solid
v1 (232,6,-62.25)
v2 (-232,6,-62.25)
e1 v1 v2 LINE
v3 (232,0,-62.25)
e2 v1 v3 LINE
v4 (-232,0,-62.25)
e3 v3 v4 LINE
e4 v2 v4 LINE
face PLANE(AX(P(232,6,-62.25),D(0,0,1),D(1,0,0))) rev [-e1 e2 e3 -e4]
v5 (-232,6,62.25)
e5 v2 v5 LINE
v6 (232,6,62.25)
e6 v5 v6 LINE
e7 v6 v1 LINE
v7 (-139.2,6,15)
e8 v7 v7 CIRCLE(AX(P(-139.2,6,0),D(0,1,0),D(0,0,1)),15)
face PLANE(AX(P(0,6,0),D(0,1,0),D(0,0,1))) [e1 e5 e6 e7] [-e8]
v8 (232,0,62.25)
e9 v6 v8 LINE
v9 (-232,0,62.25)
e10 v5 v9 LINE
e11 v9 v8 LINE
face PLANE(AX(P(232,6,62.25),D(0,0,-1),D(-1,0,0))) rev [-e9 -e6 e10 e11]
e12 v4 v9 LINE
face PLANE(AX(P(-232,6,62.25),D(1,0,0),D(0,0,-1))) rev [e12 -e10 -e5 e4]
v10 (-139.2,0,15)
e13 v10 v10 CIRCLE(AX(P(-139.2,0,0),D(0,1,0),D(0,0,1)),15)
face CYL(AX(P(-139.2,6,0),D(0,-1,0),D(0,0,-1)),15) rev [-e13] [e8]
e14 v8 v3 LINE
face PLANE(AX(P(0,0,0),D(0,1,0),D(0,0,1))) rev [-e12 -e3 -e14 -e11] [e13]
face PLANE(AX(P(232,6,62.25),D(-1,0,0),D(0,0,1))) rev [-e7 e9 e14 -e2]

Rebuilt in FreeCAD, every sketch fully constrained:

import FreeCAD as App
import Part
import Sketcher
from FreeCAD import Vector

doc = App.newDocument("Part")
body = doc.addObject("PartDesign::Body", "Body")

sketch1 = body.newObject("Sketcher::SketchObject", "Sketch")
sketch1.AttachmentSupport = (doc.getObject("XZ_Plane"), [""])
sketch1.MapMode = "FlatFace"
sketch1.addGeometry(Part.LineSegment(Vector(-232, -62.25, 0), Vector(-232, 62.25, 0)), False)
sketch1.addGeometry(Part.LineSegment(Vector(-232, 62.25, 0), Vector(232, 62.25, 0)), False)
sketch1.addGeometry(Part.LineSegment(Vector(232, 62.25, 0), Vector(232, -62.25, 0)), False)
sketch1.addGeometry(Part.LineSegment(Vector(232, -62.25, 0), Vector(-232, -62.25, 0)), False)
sketch1.addGeometry(Part.Circle(Vector(-139.2, 0, 0), Vector(0, 0, 1), 15), False)
sketch1.addConstraint(Sketcher.Constraint("Coincident", 0, 2, 1, 1))
sketch1.addConstraint(Sketcher.Constraint("Coincident", 1, 2, 2, 1))
sketch1.addConstraint(Sketcher.Constraint("Coincident", 2, 2, 3, 1))
sketch1.addConstraint(Sketcher.Constraint("Coincident", 3, 2, 0, 1))
sketch1.addConstraint(Sketcher.Constraint("Vertical", 0))
sketch1.addConstraint(Sketcher.Constraint("Horizontal", 1))
sketch1.addConstraint(Sketcher.Constraint("Vertical", 2))
sketch1.addConstraint(Sketcher.Constraint("Horizontal", 3))
sketch1.addConstraint(Sketcher.Constraint("Symmetric", 0, 2, 2, 2, -1, 1))
sketch1.addConstraint(Sketcher.Constraint("PointOnObject", 4, 3, -1))
sketch1.addConstraint(Sketcher.Constraint("Diameter", 4, 30.0))
sketch1.addConstraint(Sketcher.Constraint("DistanceX", 1, 1, 1, 2, 464.0))
sketch1.addConstraint(Sketcher.Constraint("DistanceY", 0, 1, 0, 2, 124.5))
sketch1.addConstraint(Sketcher.Constraint("DistanceX", 4, 3, -1, 1, 139.2))
pad1 = body.newObject("PartDesign::Pad", "Pad")
pad1.Profile = sketch1
pad1.Length = 6
pad1.Reversed = True

doc.recompute()
